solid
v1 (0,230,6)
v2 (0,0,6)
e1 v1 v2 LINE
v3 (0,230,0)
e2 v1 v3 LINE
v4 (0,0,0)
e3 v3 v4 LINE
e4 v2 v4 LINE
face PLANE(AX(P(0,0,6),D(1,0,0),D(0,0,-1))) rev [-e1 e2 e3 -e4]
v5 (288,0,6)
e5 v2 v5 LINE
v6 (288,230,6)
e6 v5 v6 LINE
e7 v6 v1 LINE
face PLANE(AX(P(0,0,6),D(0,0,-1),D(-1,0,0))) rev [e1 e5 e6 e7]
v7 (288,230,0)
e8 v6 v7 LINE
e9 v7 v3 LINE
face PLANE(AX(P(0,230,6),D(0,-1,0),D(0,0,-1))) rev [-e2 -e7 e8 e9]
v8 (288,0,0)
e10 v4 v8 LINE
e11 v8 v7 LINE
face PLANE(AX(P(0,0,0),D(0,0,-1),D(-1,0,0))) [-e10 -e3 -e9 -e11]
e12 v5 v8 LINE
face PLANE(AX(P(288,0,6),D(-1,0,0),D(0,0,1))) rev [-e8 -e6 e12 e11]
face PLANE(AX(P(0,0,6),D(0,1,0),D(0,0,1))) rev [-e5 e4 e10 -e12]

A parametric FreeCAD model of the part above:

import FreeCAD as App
import Part
import Sketcher
Q = App.Units.Quantity


def add_polygon(sketch, points):
    """Adds a closed chain of lines whose ends are joined by coincident constraints."""
    first, n = sketch.GeometryCount, len(points)
    for a, b in zip(points, points[1:] + points[:1]):
        sketch.addGeometry(Part.LineSegment(App.Vector(*a, 0), App.Vector(*b, 0)), False)
    for i in range(n):
        sketch.addConstraint(Sketcher.Constraint("Coincident", first + i, 2, first + (i + 1) % n, 1))

doc = App.newDocument("Part")
body = doc.addObject("PartDesign::Body", "Body")

# Sketch on XY plane
sketch1 = body.newObject("Sketcher::SketchObject", "Sketch")
sketch1.AttachmentSupport = (doc.getObject("XY_Plane"), [""])
sketch1.MapMode = "FlatFace"
add_polygon(sketch1, [(0, 230), (0, 0), (288, 0), (288, 230)])  # lines 0-3
sketch1.addConstraint(Sketcher.Constraint("Vertical", 0))
sketch1.addConstraint(Sketcher.Constraint("Horizontal", 1))
sketch1.addConstraint(Sketcher.Constraint("Vertical", 2))
sketch1.addConstraint(Sketcher.Constraint("Horizontal", 3))
sketch1.addConstraint(Sketcher.Constraint("Coincident", 0, 2, -1, 1))
sketch1.addConstraint(Sketcher.Constraint("DistanceX", 1, 1, 1, 2, Q("288 mm")))
sketch1.addConstraint(Sketcher.Constraint("DistanceY", 0, 2, 0, 1, Q("230 mm")))
pad1 = body.newObject("PartDesign::Pad", "Pad")
pad1.Profile = sketch1
pad1.Length = 6

doc.recompute()
